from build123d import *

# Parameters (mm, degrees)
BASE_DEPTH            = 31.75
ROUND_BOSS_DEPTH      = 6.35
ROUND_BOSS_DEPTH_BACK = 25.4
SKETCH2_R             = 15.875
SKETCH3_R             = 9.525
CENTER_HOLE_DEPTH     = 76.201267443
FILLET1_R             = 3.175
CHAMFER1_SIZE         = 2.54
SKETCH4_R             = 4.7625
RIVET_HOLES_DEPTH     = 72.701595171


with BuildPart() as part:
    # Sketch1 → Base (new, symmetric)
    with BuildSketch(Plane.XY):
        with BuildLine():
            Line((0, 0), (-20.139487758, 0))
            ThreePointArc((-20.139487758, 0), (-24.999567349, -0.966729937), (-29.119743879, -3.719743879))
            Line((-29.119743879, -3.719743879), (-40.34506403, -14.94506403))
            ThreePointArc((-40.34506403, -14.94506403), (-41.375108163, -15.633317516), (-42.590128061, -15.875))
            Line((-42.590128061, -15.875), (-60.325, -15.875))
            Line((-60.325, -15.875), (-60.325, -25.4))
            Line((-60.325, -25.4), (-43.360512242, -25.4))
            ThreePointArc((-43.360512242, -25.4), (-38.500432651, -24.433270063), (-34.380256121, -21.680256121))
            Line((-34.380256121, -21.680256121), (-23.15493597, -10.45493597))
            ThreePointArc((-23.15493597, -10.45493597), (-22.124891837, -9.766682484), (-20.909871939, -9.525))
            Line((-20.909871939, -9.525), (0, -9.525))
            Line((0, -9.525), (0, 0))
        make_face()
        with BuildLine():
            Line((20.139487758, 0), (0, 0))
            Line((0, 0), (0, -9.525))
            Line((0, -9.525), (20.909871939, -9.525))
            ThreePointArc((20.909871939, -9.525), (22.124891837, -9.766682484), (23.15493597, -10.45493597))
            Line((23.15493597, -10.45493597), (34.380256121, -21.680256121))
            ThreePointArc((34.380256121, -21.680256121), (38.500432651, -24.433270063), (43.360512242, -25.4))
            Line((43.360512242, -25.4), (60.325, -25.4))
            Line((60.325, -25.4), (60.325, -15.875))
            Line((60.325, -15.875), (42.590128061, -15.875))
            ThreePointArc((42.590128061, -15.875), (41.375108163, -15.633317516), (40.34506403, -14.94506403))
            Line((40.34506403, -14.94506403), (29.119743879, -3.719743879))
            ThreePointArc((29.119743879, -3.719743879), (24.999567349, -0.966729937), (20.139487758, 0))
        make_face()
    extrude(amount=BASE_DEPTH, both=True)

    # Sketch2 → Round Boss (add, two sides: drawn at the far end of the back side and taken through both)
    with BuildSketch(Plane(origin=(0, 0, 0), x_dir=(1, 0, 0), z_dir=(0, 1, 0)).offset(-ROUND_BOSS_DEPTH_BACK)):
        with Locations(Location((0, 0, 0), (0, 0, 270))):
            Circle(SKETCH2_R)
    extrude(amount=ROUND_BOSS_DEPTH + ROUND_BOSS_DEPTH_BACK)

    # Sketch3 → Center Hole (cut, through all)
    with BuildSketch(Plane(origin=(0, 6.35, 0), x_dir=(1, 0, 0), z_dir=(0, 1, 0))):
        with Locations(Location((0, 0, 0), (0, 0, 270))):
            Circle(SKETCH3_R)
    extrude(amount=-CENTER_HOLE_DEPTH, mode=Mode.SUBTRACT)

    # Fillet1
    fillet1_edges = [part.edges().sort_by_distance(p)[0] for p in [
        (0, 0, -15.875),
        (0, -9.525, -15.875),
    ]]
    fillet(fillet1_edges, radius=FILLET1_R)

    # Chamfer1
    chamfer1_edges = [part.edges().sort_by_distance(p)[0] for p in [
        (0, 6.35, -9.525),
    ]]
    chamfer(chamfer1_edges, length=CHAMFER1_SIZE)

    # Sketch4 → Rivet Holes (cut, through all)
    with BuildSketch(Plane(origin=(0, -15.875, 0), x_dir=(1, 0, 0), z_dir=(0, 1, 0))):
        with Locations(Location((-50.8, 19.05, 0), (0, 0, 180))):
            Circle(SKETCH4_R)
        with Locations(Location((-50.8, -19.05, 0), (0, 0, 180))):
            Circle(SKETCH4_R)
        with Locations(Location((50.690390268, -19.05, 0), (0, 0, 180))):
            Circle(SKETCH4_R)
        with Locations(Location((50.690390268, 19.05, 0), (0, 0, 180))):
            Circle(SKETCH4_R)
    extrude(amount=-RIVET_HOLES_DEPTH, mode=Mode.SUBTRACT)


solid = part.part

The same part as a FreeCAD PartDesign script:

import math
import FreeCAD as App
import Part
import Sketcher
from FreeCAD import Vector
Q = App.Units.Quantity


def edges_at(feature, points):
    """Names of the edges that pass closest to the given points."""
    edges = feature.Shape.Edges
    near = lambda p: min(range(len(edges)), key=lambda i: edges[i].distToShape(Part.Vertex(*p))[0])
    return sorted({f"Edge{near(p) + 1}" for p in points})

doc = App.newDocument("Part")
body = doc.addObject("PartDesign::Body", "Body")

# Sketch on XY plane
sketch1 = doc.addObject("Sketcher::SketchObject", "Sketch")
body.addObject(sketch1)
sketch1.AttachmentSupport = (doc.XY_Plane, [""])
sketch1.MapMode = "FlatFace"
sketch1.addGeometry([
    Part.ArcOfCircle(Part.Circle(Vector(-20.1, -12.7, 0), Vector(0, 0, 1), 12.7), math.radians(90), math.radians(135)),  # 0
    Part.LineSegment(Vector(-29.1, -3.7, 0), Vector(-40.3, -14.9, 0)),  # 1
    Part.ArcOfCircle(Part.Circle(Vector(-42.6, -12.7, 0), Vector(0, 0, 1), 3.2), math.radians(-90), math.radians(-45)),  # 2
    Part.LineSegment(Vector(-42.6, -15.9, 0), Vector(-60.3, -15.9, 0)),  # 3
    Part.LineSegment(Vector(-60.3, -15.9, 0), Vector(-60.3, -25.4, 0)),  # 4
    Part.LineSegment(Vector(-60.3, -25.4, 0), Vector(-43.4, -25.4, 0)),  # 5
    Part.ArcOfCircle(Part.Circle(Vector(-43.4, -12.7, 0), Vector(0, 0, 1), 12.7), math.radians(-90), math.radians(-45)),  # 6
    Part.LineSegment(Vector(-34.4, -21.7, 0), Vector(-23.2, -10.5, 0)),  # 7
    Part.ArcOfCircle(Part.Circle(Vector(-20.9, -12.7, 0), Vector(0, 0, 1), 3.2), math.radians(90), math.radians(135)),  # 8
    Part.LineSegment(Vector(-20.9, -9.5, 0), Vector(20.9, -9.5, 0)),  # 9
    Part.ArcOfCircle(Part.Circle(Vector(20.9, -12.7, 0), Vector(0, 0, 1), 3.2), math.radians(45), math.radians(90)),  # 10
    Part.LineSegment(Vector(23.2, -10.5, 0), Vector(34.4, -21.7, 0)),  # 11
    Part.ArcOfCircle(Part.Circle(Vector(43.4, -12.7, 0), Vector(0, 0, 1), 12.7), math.radians(-135), math.radians(-90)),  # 12
    Part.LineSegment(Vector(43.4, -25.4, 0), Vector(60.3, -25.4, 0)),  # 13
    Part.LineSegment(Vector(60.3, -25.4, 0), Vector(60.3, -15.9, 0)),  # 14
    Part.LineSegment(Vector(60.3, -15.9, 0), Vector(42.6, -15.9, 0)),  # 15
    Part.ArcOfCircle(Part.Circle(Vector(42.6, -12.7, 0), Vector(0, 0, 1), 3.2), math.radians(-135), math.radians(-90)),  # 16
    Part.LineSegment(Vector(40.3, -14.9, 0), Vector(29.1, -3.7, 0)),  # 17
    Part.ArcOfCircle(Part.Circle(Vector(20.1, -12.7, 0), Vector(0, 0, 1), 12.7), math.radians(45), math.radians(90)),  # 18
    Part.LineSegment(Vector(20.1, 0, 0), Vector(-20.1, 0, 0)),  # 19
], False)
sketch1.addConstraint([
    Sketcher.Constraint("Tangent", 0, 2, 1, 1),
    Sketcher.Constraint("Tangent", 1, 2, 2, 2),
    Sketcher.Constraint("Tangent", 2, 1, 3, 1),
    Sketcher.Constraint("Coincident", 3, 2, 4, 1),
    Sketcher.Constraint("Coincident", 4, 2, 5, 1),
    Sketcher.Constraint("Tangent", 5, 2, 6, 1),
    Sketcher.Constraint("Tangent", 6, 2, 7, 1),
    Sketcher.Constraint("Tangent", 7, 2, 8, 2),
    Sketcher.Constraint("Tangent", 8, 1, 9, 1),
    Sketcher.Constraint("Tangent", 9, 2, 10, 2),
    Sketcher.Constraint("Tangent", 10, 1, 11, 1),
    Sketcher.Constraint("Tangent", 11, 2, 12, 1),
    Sketcher.Constraint("Tangent", 12, 2, 13, 1),
    Sketcher.Constraint("Coincident", 13, 2, 14, 1),
    Sketcher.Constraint("Coincident", 14, 2, 15, 1),
    Sketcher.Constraint("Tangent", 15, 2, 16, 2),
    Sketcher.Constraint("Tangent", 16, 1, 17, 1),
    Sketcher.Constraint("Tangent", 17, 2, 18, 1),
    Sketcher.Constraint("Tangent", 18, 2, 19, 1),
    Sketcher.Constraint("Tangent", 19, 2, 0, 1),
    Sketcher.Constraint("Horizontal", 3),
    Sketcher.Constraint("Vertical", 4),
    Sketcher.Constraint("Horizontal", 5),
    Sketcher.Constraint("Horizontal", 9),
    Sketcher.Constraint("Horizontal", 13),
    Sketcher.Constraint("Vertical", 14),
    Sketcher.Constraint("Horizontal", 15),
    Sketcher.Constraint("Horizontal", 19),
    Sketcher.Constraint("Equal", 0, 6),
    Sketcher.Constraint("Equal", 2, 8),
    Sketcher.Constraint("Equal", 8, 10),
    Sketcher.Constraint("Equal", 6, 12),
    Sketcher.Constraint("Equal", 10, 16),
    Sketcher.Constraint("Equal", 12, 18),
    Sketcher.Constraint("Symmetric", 18, 2, 19, 2, -1, 1),
    Sketcher.Constraint("Symmetric", 6, 3, 12, 3, -2),
    Sketcher.Constraint("Symmetric", 2, 3, 16, 3, -2),
    Sketcher.Constraint("Parallel", 1, 7),
    Sketcher.Constraint("Perpendicular", 7, 11),
    Sketcher.Constraint("Parallel", 11, 17),
    Sketcher.Constraint("Horizontal", 0, 3, 2, 3),
    Sketcher.Constraint("Horizontal", 2, 3, 6, 3),
    Sketcher.Constraint("Horizontal", 6, 3, 8, 3),
    Sketcher.Constraint("Equal", 5, 13),
    Sketcher.Constraint("Radius", 0, Q("0.5 in")),
    Sketcher.Constraint("Radius", 2, Q("0.125 in")),
    Sketcher.Constraint("DistanceX", 2, 3, 10, 3, Q("2.5 in")),
    Sketcher.Constraint("DistanceX", 3, 2, -1, 1, Q("2.375 in")),
    Sketcher.Constraint("DistanceX", 3, 2, 3, 1, Q("17.734872 mm")),
])
pad1 = doc.addObject("PartDesign::Pad", "Pad")
body.addObject(pad1)
pad1.Profile = sketch1
pad1.Length = Q("2.5 in")
pad1.Midplane = True

# Sketch on XZ plane
sketch2 = doc.addObject("Sketcher::SketchObject", "Sketch001")
body.addObject(sketch2)
sketch2.AttachmentSupport = (doc.XZ_Plane, [""])
sketch2.MapMode = "FlatFace"
sketch2.addGeometry(Part.Circle(Vector(0, 0, 0), Vector(0, 0, 1), 16), False)
sketch2.addConstraint([
    Sketcher.Constraint("Coincident", 0, 3, -1, 1),
    Sketcher.Constraint("Diameter", 0, Q("1.25 in")),
])
pad2 = doc.addObject("PartDesign::Pad", "Pad001")
body.addObject(pad2)
pad2.Profile = sketch2
pad2.Type = "TwoLengths"
pad2.Length = Q("0.25 in")
pad2.Length2 = Q("1 in")
pad2.Reversed = True

# Sketch on XZ plane
sketch3 = doc.addObject("Sketcher::SketchObject", "Sketch002")
body.addObject(sketch3)
sketch3.AttachmentSupport = (doc.XZ_Plane, [""])
sketch3.MapMode = "FlatFace"
sketch3.AttachmentOffset = App.Placement(Vector(0, 0, -0.25 * 25.4), App.Rotation())
sketch3.addGeometry(Part.Circle(Vector(0, 0, 0), Vector(0, 0, 1), 10), False)
sketch3.addConstraint([
    Sketcher.Constraint("Coincident", 0, 3, -1, 1),
    Sketcher.Constraint("Diameter", 0, Q("0.75 in")),
])
pocket1 = doc.addObject("PartDesign::Pocket", "Pocket")
body.addObject(pocket1)
pocket1.Profile = sketch3
pocket1.Type = "ThroughAll"
pocket1.Reversed = True
doc.recompute()

fillet = doc.addObject("PartDesign::Fillet", "Fillet")
body.addObject(fillet)
fillet.Base = (pocket1, edges_at(pocket1, [(0, 0, -15.875), (0, -9.525, -15.875)]))
fillet.Radius = Q("0.125 in")
doc.recompute()

chamfer = doc.addObject("PartDesign::Chamfer", "Chamfer")
body.addObject(chamfer)
chamfer.Base = (fillet, edges_at(fillet, [(0, 6.35, -9.525)]))
chamfer.Size = Q("0.1 in")

# Sketch on XZ plane
sketch4 = doc.addObject("Sketcher::SketchObject", "Sketch003")
body.addObject(sketch4)
sketch4.AttachmentSupport = (doc.XZ_Plane, [""])
sketch4.MapMode = "FlatFace"
sketch4.AttachmentOffset = App.Placement(Vector(0, 0, 0.625 * 25.4), App.Rotation())
sketch4.addGeometry([
    Part.Circle(Vector(-50.8, -19.1, 0), Vector(0, 0, 1), 4.8),
    Part.Circle(Vector(-50.8, 19.1, 0), Vector(0, 0, 1), 4.8),
    Part.Circle(Vector(50.7, 19.1, 0), Vector(0, 0, 1), 4.8),
    Part.Circle(Vector(50.7, -19.1, 0), Vector(0, 0, 1), 4.8),
], False)
sketch4.addConstraint([
    Sketcher.Constraint("Equal", 0, 1),
    Sketcher.Constraint("Equal", 1, 2),
    Sketcher.Constraint("Equal", 2, 3),
    Sketcher.Constraint("Symmetric", 0, 3, 1, 3, -1),
    Sketcher.Constraint("Symmetric", 2, 3, 3, 3, -1),
    Sketcher.Constraint("Horizontal", 1, 3, 2, 3),
    Sketcher.Constraint("Diameter", 0, Q("0.375 in")),
    Sketcher.Constraint("DistanceX", 0, 3, -1, 1, Q("2 in")),
    Sketcher.Constraint("DistanceY", 0, 3, 1, 3, Q("1.5 in")),
    Sketcher.Constraint("DistanceX", -1, 1, 2, 3, Q("50.69039 mm")),
])
pocket2 = doc.addObject("PartDesign::Pocket", "Pocket001")
body.addObject(pocket2)
pocket2.Profile = sketch4
pocket2.Type = "ThroughAll"
pocket2.Reversed = True

doc.recompute()
